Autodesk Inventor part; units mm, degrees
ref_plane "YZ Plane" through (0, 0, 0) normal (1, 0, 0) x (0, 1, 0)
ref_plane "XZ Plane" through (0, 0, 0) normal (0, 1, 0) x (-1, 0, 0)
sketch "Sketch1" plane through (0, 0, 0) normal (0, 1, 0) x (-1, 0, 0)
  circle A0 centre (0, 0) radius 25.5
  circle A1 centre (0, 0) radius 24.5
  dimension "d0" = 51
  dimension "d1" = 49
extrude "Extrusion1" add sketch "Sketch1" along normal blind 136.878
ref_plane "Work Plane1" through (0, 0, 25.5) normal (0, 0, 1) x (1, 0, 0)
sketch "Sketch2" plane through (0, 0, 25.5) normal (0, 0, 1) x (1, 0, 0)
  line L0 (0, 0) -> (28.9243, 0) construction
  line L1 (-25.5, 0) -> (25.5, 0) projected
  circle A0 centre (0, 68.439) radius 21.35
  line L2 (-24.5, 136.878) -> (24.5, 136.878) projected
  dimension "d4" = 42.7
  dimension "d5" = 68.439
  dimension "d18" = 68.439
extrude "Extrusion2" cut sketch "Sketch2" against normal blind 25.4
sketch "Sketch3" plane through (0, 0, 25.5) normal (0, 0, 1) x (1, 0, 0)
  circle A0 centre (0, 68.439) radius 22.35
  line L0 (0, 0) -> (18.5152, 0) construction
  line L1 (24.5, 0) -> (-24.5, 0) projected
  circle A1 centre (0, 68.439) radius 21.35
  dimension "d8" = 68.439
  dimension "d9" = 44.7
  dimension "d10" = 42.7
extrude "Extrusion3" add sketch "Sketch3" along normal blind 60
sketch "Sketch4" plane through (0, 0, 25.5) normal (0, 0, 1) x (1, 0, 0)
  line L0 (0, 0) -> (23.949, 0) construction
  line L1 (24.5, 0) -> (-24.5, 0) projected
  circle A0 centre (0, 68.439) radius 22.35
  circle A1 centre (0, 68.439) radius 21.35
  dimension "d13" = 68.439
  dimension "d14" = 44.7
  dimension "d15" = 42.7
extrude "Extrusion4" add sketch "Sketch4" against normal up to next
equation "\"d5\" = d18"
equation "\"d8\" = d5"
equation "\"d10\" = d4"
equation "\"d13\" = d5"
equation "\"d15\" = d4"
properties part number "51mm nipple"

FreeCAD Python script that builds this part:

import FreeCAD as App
import Part
import Sketcher

V = App.Vector
Q = App.Units.Quantity

doc = App.newDocument("Part")
params = doc.addObject("Spreadsheet::Sheet", "Params")
for row, (alias, value) in enumerate([
    ("sketch1_diameter", "51 mm"),
    ("sketch1_diameter2", "49 mm"),
    ("pad1_length", "136.878 mm"),
    ("sketch2_diameter", "42.7 mm"),
    ("pocket1_length", "25.4 mm"),
    ("sketch3_diameter", "44.7 mm"),
    ("sketch3_diameter2", "42.7 mm"),
    ("pad2_length", "60 mm"),
    ("sketch4_diameter", "44.7 mm"),
    ("sketch4_diameter2", "42.7 mm"),
], start=1):
    params.set(f"A{row}", alias)
    params.set(f"B{row}", "=" + value)
    params.setAlias(f"B{row}", alias)

body = doc.addObject("PartDesign::Body", "Body")
body.AllowCompound = True

sketch1 = doc.addObject("Sketcher::SketchObject", "Sketch")
body.addObject(sketch1)
sketch1.AttachmentSupport = (doc.XZ_Plane, [""])
sketch1.MapMode = "FlatFace"
sketch1.addGeometry(Part.Circle(V(0, 0, 0), V(0, 0, 1), 26), False)
sketch1.addGeometry(Part.Circle(V(0, 0, 0), V(0, 0, 1), 24), False)
sketch1.addConstraint(Sketcher.Constraint("Coincident", 0, 3, -1, 1))
sketch1.addConstraint(Sketcher.Constraint("Coincident", 1, 3, -1, 1))
sketch1.addConstraint(Sketcher.Constraint("Diameter", 0, Q("51 mm")))
sketch1.addConstraint(Sketcher.Constraint("Diameter", 1, Q("49 mm")))
sketch1.setExpression("Constraints[2]", "Params.sketch1_diameter")
sketch1.setExpression("Constraints[3]", "Params.sketch1_diameter2")
pad1 = doc.addObject("PartDesign::Pad", "Pad")
body.addObject(pad1)
pad1.Profile = sketch1
pad1.setExpression("Length", "Params.pad1_length")
pad1.Reversed = True

sketch2 = doc.addObject("Sketcher::SketchObject", "Sketch001")
body.addObject(sketch2)
sketch2.AttachmentSupport = (doc.XY_Plane, [""])
sketch2.MapMode = "FlatFace"
sketch2.AttachmentOffset = App.Placement(V(0, 0, 25.5), App.Rotation())
sketch2.addGeometry(Part.Circle(V(0, 68, 0), V(0, 0, 1), 21), False)
sketch2.addConstraint(Sketcher.Constraint("PointOnObject", 0, 3, -2))
sketch2.addConstraint(Sketcher.Constraint("Diameter", 0, Q("42.7 mm")))
sketch2.addConstraint(Sketcher.Constraint("DistanceY", -1, 1, 0, 3, Q("68.439 mm")))
sketch2.setExpression("Constraints[1]", "Params.sketch2_diameter")
pocket1 = doc.addObject("PartDesign::Pocket", "Pocket")
body.addObject(pocket1)
pocket1.Profile = sketch2
pocket1.setExpression("Length", "Params.pocket1_length")

sketch3 = doc.addObject("Sketcher::SketchObject", "Sketch002")
body.addObject(sketch3)
sketch3.AttachmentSupport = (doc.XY_Plane, [""])
sketch3.MapMode = "FlatFace"
sketch3.AttachmentOffset = App.Placement(V(0, 0, 25.5), App.Rotation())
sketch3.addGeometry(Part.Circle(V(0, 68, 0), V(0, 0, 1), 22), False)
sketch3.addGeometry(Part.Circle(V(0, 68, 0), V(0, 0, 1), 21), False)
sketch3.addConstraint(Sketcher.Constraint("Coincident", 1, 3, 0, 3))
sketch3.addConstraint(Sketcher.Constraint("PointOnObject", 0, 3, -2))
sketch3.addConstraint(Sketcher.Constraint("Diameter", 0, Q("44.7 mm")))
sketch3.addConstraint(Sketcher.Constraint("Diameter", 1, Q("42.7 mm")))
sketch3.addConstraint(Sketcher.Constraint("DistanceY", -1, 1, 0, 3, Q("68.439 mm")))
sketch3.setExpression("Constraints[2]", "Params.sketch3_diameter")
sketch3.setExpression("Constraints[3]", "Params.sketch3_diameter2")
pad2 = doc.addObject("PartDesign::Pad", "Pad001")
body.addObject(pad2)
pad2.Profile = sketch3
pad2.setExpression("Length", "Params.pad2_length")

sketch4 = doc.addObject("Sketcher::SketchObject", "Sketch003")
body.addObject(sketch4)
sketch4.AttachmentSupport = (doc.XY_Plane, [""])
sketch4.MapMode = "FlatFace"
sketch4.AttachmentOffset = App.Placement(V(0, 0, 25.5), App.Rotation())
sketch4.addGeometry(Part.Circle(V(0, 68, 0), V(0, 0, 1), 22), False)
sketch4.addGeometry(Part.Circle(V(0, 68, 0), V(0, 0, 1), 21), False)
sketch4.addConstraint(Sketcher.Constraint("Coincident", 1, 3, 0, 3))
sketch4.addConstraint(Sketcher.Constraint("PointOnObject", 0, 3, -2))
sketch4.addConstraint(Sketcher.Constraint("Diameter", 0, Q("44.7 mm")))
sketch4.addConstraint(Sketcher.Constraint("Diameter", 1, Q("42.7 mm")))
sketch4.addConstraint(Sketcher.Constraint("DistanceY", -1, 1, 0, 3, Q("68.439 mm")))
sketch4.setExpression("Constraints[2]", "Params.sketch4_diameter")
sketch4.setExpression("Constraints[3]", "Params.sketch4_diameter2")
pad3 = doc.addObject("PartDesign::Pad", "Pad002")
body.addObject(pad3)
pad3.Profile = sketch4
pad3.Type = "UpToFirst"
pad3.Reversed = True

doc.recompute()
